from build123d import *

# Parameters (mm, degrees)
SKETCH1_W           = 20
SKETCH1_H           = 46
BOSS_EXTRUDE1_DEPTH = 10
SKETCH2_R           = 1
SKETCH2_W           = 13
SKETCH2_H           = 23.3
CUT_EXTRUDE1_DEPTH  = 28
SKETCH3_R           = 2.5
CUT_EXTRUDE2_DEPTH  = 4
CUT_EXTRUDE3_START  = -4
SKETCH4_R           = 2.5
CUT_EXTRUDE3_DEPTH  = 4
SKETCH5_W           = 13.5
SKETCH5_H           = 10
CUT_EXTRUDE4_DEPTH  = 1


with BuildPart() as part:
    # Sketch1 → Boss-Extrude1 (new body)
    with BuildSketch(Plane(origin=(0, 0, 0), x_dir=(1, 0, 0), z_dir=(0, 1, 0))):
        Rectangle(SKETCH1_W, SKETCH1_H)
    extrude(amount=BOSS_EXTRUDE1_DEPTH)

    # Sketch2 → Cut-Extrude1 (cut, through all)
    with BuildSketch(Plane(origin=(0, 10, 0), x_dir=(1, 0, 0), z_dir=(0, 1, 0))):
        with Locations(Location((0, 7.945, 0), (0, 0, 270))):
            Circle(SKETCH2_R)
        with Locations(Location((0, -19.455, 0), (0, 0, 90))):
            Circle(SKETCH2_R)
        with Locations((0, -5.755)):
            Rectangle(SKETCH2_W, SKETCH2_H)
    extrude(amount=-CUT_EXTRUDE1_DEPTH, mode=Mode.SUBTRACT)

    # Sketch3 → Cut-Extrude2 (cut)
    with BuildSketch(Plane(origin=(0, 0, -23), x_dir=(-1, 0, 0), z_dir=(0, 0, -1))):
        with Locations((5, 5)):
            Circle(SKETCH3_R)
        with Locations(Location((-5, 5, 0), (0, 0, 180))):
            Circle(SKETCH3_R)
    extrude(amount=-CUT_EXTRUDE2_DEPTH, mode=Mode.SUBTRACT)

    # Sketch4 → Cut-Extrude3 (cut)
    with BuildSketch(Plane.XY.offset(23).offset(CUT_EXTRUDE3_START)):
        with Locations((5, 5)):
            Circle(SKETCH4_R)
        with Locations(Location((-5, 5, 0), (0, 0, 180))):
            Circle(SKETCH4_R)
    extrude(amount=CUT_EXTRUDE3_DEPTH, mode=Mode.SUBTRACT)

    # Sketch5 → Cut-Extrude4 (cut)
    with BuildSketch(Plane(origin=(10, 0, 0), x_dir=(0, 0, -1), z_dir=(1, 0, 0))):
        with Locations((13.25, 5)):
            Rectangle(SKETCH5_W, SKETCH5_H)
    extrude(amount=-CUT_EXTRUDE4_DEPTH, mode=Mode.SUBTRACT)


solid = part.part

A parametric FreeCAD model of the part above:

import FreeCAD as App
import Part
import Sketcher

V = App.Vector
Q = App.Units.Quantity


def add_polygon(sketch, points):
    """Adds a closed chain of lines whose ends are joined by coincident constraints."""
    first, n = sketch.GeometryCount, len(points)
    for a, b in zip(points, points[1:] + points[:1]):
        sketch.addGeometry(Part.LineSegment(App.Vector(*a, 0), App.Vector(*b, 0)), False)
    for i in range(n):
        sketch.addConstraint(Sketcher.Constraint("Coincident", first + i, 2, first + (i + 1) % n, 1))

doc = App.newDocument("Part")
body = doc.addObject("PartDesign::Body", "Body")

# Sketch on XZ plane
sketch1 = body.newObject("Sketcher::SketchObject", "Sketch")
sketch1.AttachmentSupport = (doc.getObject("XZ_Plane"), [""])
sketch1.MapMode = "FlatFace"
add_polygon(sketch1, [(-10, -23), (-10, 23), (10, 23), (10, -23)])  # lines 0-3
sketch1.addConstraint([
    Sketcher.Constraint("Vertical", 0),
    Sketcher.Constraint("Horizontal", 1),
    Sketcher.Constraint("Vertical", 2),
    Sketcher.Constraint("Horizontal", 3),
    Sketcher.Constraint("Symmetric", 0, 2, 2, 2, -1, 1),
    Sketcher.Constraint("DistanceX", 1, 1, 1, 2, Q("20 mm")),
    Sketcher.Constraint("DistanceY", 0, 1, 0, 2, Q("46 mm")),
])
pad1 = body.newObject("PartDesign::Pad", "Pad")
pad1.Profile = sketch1
pad1.Length = 10
pad1.Reversed = True

# Sketch on XZ plane
sketch2 = body.newObject("Sketcher::SketchObject", "Sketch001")
sketch2.AttachmentSupport = (doc.getObject("XZ_Plane"), [""])
sketch2.MapMode = "FlatFace"
sketch2.AttachmentOffset = App.Placement(V(0, 0, -10), App.Rotation())
sketch2.addGeometry(Part.Circle(V(0, -7.9, 0), V(0, 0, 1), 1), False)  # 0
sketch2.addGeometry(Part.Circle(V(0, 19.5, 0), V(0, 0, 1), 1), False)  # 1
add_polygon(sketch2, [(-6.5, -5.9), (-6.5, 17.4), (6.5, 17.4), (6.5, -5.9)])  # lines 2-5
sketch2.addConstraint([
    Sketcher.Constraint("Vertical", 2),
    Sketcher.Constraint("Horizontal", 3),
    Sketcher.Constraint("Vertical", 4),
    Sketcher.Constraint("Horizontal", 5),
    Sketcher.Constraint("Equal", 0, 1),
    Sketcher.Constraint("PointOnObject", 0, 3, -2),
    Sketcher.Constraint("PointOnObject", 1, 3, -2),
    Sketcher.Constraint("Diameter", 0, Q("2 mm")),
    Sketcher.Constraint("DistanceX", 3, 1, 3, 2, Q("13 mm")),
    Sketcher.Constraint("DistanceY", 2, 1, 2, 2, Q("23.3 mm")),
    Sketcher.Constraint("DistanceX", 2, 2, -1, 1, Q("6.5 mm")),
    Sketcher.Constraint("DistanceY", 0, 3, 1, 3, Q("27.4 mm")),
    Sketcher.Constraint("DistanceY", 2, 2, 1, 3, Q("2.05 mm")),
    Sketcher.Constraint("DistanceY", 0, 3, -1, 1, Q("7.945 mm")),
])
pocket1 = body.newObject("PartDesign::Pocket", "Pocket")
pocket1.Profile = sketch2
pocket1.Type = "ThroughAll"
pocket1.Reversed = True

# Sketch on XY plane
sketch3 = body.newObject("Sketcher::SketchObject", "Sketch002")
sketch3.AttachmentSupport = (doc.getObject("XY_Plane"), [""])
sketch3.MapMode = "FlatFace"
sketch3.AttachmentOffset = App.Placement(V(0, 0, -23), App.Rotation())
sketch3.addGeometry([
    Part.Circle(V(-5, 5, 0), V(0, 0, 1), 2.5),
    Part.Circle(V(5, 5, 0), V(0, 0, 1), 2.5),
], False)
sketch3.addConstraint([
    Sketcher.Constraint("Equal", 0, 1),
    Sketcher.Constraint("Symmetric", 0, 3, 1, 3, -2),
    Sketcher.Constraint("Diameter", 0, Q("5 mm")),
    Sketcher.Constraint("DistanceX", 0, 3, -1, 1, Q("5 mm")),
    Sketcher.Constraint("DistanceY", -1, 1, 0, 3, Q("5 mm")),
])
pocket2 = body.newObject("PartDesign::Pocket", "Pocket001")
pocket2.Profile = sketch3
pocket2.Length = 4
pocket2.Reversed = True

# Sketch on XY plane
sketch4 = body.newObject("Sketcher::SketchObject", "Sketch003")
sketch4.AttachmentSupport = (doc.getObject("XY_Plane"), [""])
sketch4.MapMode = "FlatFace"
sketch4.AttachmentOffset = App.Placement(V(0, 0, 19), App.Rotation())
sketch4.addGeometry([
    Part.Circle(V(5, 5, 0), V(0, 0, 1), 2.5),
    Part.Circle(V(-5, 5, 0), V(0, 0, 1), 2.5),
], False)
sketch4.addConstraint([
    Sketcher.Constraint("Equal", 0, 1),
    Sketcher.Constraint("Symmetric", 0, 3, 1, 3, -2),
    Sketcher.Constraint("Diameter", 0, Q("5 mm")),
    Sketcher.Constraint("DistanceX", -1, 1, 0, 3, Q("5 mm")),
    Sketcher.Constraint("DistanceY", -1, 1, 0, 3, Q("5 mm")),
])
pocket3 = body.newObject("PartDesign::Pocket", "Pocket002")
pocket3.Profile = sketch4
pocket3.Length = 4
pocket3.Reversed = True

# Sketch on YZ plane
sketch5 = body.newObject("Sketcher::SketchObject", "Sketch004")
sketch5.AttachmentSupport = (doc.getObject("YZ_Plane"), [""])
sketch5.MapMode = "FlatFace"
sketch5.AttachmentOffset = App.Placement(V(0, 0, 10), App.Rotation())
add_polygon(sketch5, [(10, -6), (0, -6), (0, -20), (10, -20)])  # lines 0-3
sketch5.addConstraint([
    Sketcher.Constraint("Horizontal", 0),
    Sketcher.Constraint("Vertical", 1),
    Sketcher.Constraint("Horizontal", 2),
    Sketcher.Constraint("Vertical", 3),
    Sketcher.Constraint("PointOnObject", 0, 2, -2),
    Sketcher.Constraint("DistanceX", 0, 2, 0, 1, Q("10 mm")),
    Sketcher.Constraint("DistanceY", 1, 2, 1, 1, Q("13.5 mm")),
    Sketcher.Constraint("DistanceY", 1, 2, -1, 1, Q("20 mm")),
])
pocket4 = body.newObject("PartDesign::Pocket", "Pocket003")
pocket4.Profile = sketch5
pocket4.Length = 1

doc.recompute()
